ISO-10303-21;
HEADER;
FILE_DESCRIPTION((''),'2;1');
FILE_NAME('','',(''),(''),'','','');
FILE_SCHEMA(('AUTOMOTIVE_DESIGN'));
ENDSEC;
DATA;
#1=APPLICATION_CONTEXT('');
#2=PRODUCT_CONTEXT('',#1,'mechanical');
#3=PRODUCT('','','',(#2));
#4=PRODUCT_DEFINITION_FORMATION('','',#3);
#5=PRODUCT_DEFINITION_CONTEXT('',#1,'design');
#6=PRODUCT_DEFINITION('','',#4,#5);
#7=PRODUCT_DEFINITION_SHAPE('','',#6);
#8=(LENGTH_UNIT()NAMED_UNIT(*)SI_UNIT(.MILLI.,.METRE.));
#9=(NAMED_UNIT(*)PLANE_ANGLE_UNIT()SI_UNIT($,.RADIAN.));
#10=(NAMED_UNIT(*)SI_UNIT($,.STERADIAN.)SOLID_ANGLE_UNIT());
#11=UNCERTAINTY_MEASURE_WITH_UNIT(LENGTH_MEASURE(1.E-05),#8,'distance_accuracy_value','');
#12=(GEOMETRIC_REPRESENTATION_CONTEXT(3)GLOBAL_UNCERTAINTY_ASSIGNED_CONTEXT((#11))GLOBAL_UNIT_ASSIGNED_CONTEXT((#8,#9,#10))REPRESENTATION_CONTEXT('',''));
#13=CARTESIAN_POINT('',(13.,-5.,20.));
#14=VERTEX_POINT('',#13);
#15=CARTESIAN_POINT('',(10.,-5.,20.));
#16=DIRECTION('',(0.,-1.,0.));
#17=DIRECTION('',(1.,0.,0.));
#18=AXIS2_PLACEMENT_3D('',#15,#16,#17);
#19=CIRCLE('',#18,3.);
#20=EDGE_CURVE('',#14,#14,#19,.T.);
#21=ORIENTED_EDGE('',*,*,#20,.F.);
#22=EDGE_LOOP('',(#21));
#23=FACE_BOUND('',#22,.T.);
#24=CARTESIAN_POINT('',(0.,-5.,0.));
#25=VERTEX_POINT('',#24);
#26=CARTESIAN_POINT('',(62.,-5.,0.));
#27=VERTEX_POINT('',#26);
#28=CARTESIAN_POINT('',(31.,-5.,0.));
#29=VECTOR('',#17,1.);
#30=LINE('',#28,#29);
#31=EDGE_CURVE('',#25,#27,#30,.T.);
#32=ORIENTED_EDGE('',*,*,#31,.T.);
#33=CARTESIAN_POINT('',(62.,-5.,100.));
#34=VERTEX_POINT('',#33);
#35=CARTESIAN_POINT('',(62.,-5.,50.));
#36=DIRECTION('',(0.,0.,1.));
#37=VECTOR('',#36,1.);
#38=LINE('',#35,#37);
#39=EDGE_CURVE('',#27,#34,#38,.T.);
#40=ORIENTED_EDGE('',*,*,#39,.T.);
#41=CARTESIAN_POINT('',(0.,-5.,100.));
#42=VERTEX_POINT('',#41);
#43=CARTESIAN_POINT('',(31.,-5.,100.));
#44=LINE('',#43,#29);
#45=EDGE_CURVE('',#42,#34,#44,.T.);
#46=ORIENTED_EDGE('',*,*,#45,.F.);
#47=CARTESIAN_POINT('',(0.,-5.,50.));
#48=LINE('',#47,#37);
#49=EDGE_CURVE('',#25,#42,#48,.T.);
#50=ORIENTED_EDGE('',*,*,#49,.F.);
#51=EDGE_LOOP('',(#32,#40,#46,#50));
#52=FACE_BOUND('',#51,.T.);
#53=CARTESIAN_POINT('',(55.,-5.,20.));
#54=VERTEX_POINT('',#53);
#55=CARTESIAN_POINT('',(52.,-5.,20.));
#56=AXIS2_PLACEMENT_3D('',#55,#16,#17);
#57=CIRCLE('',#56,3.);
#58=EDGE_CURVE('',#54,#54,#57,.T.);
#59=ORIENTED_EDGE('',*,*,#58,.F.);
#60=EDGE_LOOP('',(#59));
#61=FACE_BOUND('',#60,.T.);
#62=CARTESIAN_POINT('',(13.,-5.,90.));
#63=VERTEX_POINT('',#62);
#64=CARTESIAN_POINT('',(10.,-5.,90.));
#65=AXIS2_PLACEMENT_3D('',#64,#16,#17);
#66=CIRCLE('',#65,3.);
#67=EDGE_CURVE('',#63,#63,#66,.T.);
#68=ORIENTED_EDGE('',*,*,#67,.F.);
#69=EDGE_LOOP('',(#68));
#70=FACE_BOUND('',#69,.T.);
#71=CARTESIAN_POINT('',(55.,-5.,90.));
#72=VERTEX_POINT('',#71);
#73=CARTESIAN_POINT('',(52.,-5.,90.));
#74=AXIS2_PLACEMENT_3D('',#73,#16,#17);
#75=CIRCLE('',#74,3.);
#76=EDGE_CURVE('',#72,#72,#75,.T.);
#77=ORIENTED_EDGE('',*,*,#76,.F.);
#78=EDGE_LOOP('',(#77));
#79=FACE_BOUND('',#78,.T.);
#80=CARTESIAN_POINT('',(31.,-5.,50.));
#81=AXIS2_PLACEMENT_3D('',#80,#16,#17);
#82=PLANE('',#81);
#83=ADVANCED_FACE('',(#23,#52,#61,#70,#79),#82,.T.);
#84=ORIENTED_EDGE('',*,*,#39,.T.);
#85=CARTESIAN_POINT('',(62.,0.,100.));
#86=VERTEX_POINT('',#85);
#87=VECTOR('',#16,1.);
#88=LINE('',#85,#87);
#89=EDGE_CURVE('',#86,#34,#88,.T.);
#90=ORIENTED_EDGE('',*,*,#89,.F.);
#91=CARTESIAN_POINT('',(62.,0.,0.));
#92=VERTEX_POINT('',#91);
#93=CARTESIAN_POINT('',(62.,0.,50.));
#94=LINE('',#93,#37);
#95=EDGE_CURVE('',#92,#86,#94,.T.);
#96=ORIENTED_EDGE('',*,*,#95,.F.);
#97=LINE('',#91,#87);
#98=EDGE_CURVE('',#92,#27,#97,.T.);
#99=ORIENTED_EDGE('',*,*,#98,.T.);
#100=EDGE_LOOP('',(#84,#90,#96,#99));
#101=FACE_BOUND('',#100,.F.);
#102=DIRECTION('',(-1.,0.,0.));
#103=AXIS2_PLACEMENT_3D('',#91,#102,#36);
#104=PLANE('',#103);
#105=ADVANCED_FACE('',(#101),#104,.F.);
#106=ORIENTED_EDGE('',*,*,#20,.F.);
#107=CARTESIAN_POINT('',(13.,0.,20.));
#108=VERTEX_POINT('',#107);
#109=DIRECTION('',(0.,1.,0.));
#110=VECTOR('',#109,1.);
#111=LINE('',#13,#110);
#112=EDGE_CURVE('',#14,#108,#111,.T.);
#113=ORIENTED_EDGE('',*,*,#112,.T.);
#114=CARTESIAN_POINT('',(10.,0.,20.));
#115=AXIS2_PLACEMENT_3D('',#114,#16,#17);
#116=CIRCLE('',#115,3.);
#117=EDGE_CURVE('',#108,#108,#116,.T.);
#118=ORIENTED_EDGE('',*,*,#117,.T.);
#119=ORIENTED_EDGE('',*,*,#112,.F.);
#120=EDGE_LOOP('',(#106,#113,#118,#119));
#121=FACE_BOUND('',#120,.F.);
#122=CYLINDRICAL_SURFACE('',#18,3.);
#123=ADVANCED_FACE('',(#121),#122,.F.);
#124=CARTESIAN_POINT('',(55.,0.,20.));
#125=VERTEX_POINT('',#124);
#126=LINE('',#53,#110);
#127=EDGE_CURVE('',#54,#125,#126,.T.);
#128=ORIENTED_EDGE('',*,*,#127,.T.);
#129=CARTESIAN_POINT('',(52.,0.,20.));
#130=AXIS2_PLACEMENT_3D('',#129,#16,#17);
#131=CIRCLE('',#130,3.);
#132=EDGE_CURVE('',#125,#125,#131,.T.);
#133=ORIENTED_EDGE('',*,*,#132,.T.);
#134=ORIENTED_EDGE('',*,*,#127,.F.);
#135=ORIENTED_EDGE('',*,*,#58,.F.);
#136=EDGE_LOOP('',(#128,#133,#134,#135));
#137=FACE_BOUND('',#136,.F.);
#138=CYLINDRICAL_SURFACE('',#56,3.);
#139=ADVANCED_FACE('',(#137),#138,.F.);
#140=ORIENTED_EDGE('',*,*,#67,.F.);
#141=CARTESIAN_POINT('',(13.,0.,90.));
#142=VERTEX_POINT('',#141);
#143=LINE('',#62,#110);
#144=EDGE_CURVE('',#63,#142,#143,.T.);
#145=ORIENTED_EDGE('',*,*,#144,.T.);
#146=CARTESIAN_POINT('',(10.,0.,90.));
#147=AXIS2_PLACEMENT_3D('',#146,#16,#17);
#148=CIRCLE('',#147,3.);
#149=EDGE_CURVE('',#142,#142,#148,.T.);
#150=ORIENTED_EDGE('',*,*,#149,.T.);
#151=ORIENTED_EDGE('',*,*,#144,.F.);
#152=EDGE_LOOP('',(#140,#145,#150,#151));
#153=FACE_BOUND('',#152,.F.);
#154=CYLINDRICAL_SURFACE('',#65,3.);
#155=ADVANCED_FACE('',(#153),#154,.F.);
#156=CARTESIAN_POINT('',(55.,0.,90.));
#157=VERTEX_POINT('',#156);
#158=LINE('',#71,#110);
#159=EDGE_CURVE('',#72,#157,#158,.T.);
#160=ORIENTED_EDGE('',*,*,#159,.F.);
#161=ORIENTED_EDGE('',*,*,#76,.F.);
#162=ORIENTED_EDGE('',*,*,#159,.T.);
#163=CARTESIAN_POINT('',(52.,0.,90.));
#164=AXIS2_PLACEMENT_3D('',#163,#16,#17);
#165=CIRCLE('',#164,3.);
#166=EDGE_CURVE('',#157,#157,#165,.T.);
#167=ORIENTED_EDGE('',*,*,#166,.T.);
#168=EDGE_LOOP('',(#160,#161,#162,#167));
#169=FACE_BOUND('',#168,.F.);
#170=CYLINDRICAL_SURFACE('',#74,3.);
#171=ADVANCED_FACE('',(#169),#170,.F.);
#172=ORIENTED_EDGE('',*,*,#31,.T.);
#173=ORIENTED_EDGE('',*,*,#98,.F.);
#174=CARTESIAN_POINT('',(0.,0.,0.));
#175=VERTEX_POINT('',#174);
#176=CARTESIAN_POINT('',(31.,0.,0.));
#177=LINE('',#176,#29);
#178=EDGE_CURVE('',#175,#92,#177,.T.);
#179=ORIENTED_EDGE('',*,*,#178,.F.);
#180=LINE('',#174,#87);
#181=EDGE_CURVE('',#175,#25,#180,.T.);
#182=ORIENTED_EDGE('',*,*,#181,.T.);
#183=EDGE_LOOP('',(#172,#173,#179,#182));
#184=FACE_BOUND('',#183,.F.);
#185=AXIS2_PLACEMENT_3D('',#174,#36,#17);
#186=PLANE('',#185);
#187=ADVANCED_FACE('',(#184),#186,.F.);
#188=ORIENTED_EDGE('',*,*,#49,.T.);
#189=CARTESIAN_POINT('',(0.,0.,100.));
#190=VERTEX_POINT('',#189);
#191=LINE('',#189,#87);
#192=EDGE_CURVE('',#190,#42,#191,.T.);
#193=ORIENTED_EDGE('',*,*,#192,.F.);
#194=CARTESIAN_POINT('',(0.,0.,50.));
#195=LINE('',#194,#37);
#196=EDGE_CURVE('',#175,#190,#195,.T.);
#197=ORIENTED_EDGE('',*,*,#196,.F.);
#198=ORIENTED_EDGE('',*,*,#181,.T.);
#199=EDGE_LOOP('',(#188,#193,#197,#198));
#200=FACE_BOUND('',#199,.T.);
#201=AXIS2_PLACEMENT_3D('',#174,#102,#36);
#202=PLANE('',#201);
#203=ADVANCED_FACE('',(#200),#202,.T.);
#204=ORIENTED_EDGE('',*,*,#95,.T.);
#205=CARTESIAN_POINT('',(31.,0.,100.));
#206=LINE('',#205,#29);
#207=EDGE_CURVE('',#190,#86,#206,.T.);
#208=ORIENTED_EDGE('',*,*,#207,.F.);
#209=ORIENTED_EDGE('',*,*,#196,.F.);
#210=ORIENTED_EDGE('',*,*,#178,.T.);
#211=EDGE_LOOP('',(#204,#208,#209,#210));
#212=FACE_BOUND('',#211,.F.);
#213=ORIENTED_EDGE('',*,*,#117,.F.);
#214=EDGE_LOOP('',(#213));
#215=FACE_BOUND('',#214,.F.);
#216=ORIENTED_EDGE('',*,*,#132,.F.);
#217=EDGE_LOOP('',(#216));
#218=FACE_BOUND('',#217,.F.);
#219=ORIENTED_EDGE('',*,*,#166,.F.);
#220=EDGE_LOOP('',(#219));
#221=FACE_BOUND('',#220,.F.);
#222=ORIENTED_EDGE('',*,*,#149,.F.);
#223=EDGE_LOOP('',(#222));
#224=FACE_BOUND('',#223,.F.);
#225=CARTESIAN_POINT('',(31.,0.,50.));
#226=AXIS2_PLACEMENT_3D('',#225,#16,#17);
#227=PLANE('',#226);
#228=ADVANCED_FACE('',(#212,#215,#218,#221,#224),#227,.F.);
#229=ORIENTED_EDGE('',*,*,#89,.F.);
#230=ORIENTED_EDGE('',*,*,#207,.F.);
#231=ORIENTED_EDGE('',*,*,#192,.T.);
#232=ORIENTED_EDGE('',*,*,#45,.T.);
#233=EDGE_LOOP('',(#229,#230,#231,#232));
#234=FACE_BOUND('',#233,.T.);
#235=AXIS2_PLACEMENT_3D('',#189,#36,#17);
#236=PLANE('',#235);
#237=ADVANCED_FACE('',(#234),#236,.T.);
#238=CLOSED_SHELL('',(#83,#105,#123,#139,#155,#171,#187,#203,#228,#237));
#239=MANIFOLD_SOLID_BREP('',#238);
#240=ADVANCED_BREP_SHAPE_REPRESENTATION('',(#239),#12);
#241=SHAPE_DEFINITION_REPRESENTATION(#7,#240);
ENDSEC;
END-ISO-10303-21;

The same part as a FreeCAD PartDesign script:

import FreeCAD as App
import Part
import Sketcher

V = App.Vector
Q = App.Units.Quantity


def add_polygon(sketch, points):
    """Adds a closed chain of lines whose ends are joined by coincident constraints."""
    first, n = sketch.GeometryCount, len(points)
    for a, b in zip(points, points[1:] + points[:1]):
        sketch.addGeometry(Part.LineSegment(App.Vector(*a, 0), App.Vector(*b, 0)), False)
    for i in range(n):
        sketch.addConstraint(Sketcher.Constraint("Coincident", first + i, 2, first + (i + 1) % n, 1))

doc = App.newDocument("Part")
params = doc.addObject("Spreadsheet::Sheet", "Params")
for row, (alias, value) in enumerate([
    ("sketch1_width", "62 mm"),
    ("sketch1_height", "100 mm"),
    ("pad1_length", "5 mm"),
    ("sketch2_diameter", "6 mm"),
], start=1):
    params.set(f"A{row}", alias)
    params.set(f"B{row}", "=" + value)
    params.setAlias(f"B{row}", alias)

body = doc.addObject("PartDesign::Body", "Body")

# Sketch on XZ plane
sketch1 = body.newObject("Sketcher::SketchObject", "Sketch")
sketch1.AttachmentSupport = (doc.getObject("XZ_Plane"), [""])
sketch1.MapMode = "FlatFace"
add_polygon(sketch1, [(0, 100), (0, 0), (62, 0), (62, 100)])  # lines 0-3
sketch1.addConstraint([
    Sketcher.Constraint("Vertical", 0),
    Sketcher.Constraint("Horizontal", 1),
    Sketcher.Constraint("Vertical", 2),
    Sketcher.Constraint("Horizontal", 3),
    Sketcher.Constraint("Coincident", 0, 2, -1, 1),
    Sketcher.Constraint("DistanceX", 1, 1, 1, 2, Q("62 mm")),
    Sketcher.Constraint("DistanceY", 0, 2, 0, 1, Q("100 mm")),
])
sketch1.setExpression("Constraints[9]", "Params.sketch1_width")
sketch1.setExpression("Constraints[10]", "Params.sketch1_height")
pad1 = body.newObject("PartDesign::Pad", "Pad")
pad1.Profile = sketch1
pad1.setExpression("Length", "Params.pad1_length")

# Sketch on XZ plane
sketch2 = body.newObject("Sketcher::SketchObject", "Sketch001")
sketch2.AttachmentSupport = (doc.getObject("XZ_Plane"), [""])
sketch2.MapMode = "FlatFace"
sketch2.AttachmentOffset = App.Placement(V(0, 0, 5), App.Rotation())
sketch2.addGeometry([
    Part.Circle(V(10, 90, 0), V(0, 0, 1), 3),
    Part.Circle(V(52, 90, 0), V(0, 0, 1), 3),
    Part.Circle(V(10, 20, 0), V(0, 0, 1), 3),
    Part.Circle(V(52, 20, 0), V(0, 0, 1), 3),
], False)
sketch2.addConstraint([
    Sketcher.Constraint("Equal", 0, 1),
    Sketcher.Constraint("Equal", 1, 2),
    Sketcher.Constraint("Equal", 2, 3),
    Sketcher.Constraint("Horizontal", 0, 3, 1, 3),
    Sketcher.Constraint("Horizontal", 2, 3, 3, 3),
    Sketcher.Constraint("Vertical", 0, 3, 2, 3),
    Sketcher.Constraint("Vertical", 1, 3, 3, 3),
    Sketcher.Constraint("Diameter", 0, Q("6 mm")),
    Sketcher.Constraint("DistanceX", -1, 1, 0, 3, Q("10 mm")),
    Sketcher.Constraint("DistanceY", -1, 1, 0, 3, Q("90 mm")),
    Sketcher.Constraint("DistanceX", -1, 1, 1, 3, Q("52 mm")),
    Sketcher.Constraint("DistanceY", -1, 1, 2, 3, Q("20 mm")),
])
sketch2.setExpression("Constraints[7]", "Params.sketch2_diameter")
pocket1 = body.newObject("PartDesign::Pocket", "Pocket")
pocket1.Profile = sketch2
pocket1.Type = "ThroughAll"

doc.recompute()
